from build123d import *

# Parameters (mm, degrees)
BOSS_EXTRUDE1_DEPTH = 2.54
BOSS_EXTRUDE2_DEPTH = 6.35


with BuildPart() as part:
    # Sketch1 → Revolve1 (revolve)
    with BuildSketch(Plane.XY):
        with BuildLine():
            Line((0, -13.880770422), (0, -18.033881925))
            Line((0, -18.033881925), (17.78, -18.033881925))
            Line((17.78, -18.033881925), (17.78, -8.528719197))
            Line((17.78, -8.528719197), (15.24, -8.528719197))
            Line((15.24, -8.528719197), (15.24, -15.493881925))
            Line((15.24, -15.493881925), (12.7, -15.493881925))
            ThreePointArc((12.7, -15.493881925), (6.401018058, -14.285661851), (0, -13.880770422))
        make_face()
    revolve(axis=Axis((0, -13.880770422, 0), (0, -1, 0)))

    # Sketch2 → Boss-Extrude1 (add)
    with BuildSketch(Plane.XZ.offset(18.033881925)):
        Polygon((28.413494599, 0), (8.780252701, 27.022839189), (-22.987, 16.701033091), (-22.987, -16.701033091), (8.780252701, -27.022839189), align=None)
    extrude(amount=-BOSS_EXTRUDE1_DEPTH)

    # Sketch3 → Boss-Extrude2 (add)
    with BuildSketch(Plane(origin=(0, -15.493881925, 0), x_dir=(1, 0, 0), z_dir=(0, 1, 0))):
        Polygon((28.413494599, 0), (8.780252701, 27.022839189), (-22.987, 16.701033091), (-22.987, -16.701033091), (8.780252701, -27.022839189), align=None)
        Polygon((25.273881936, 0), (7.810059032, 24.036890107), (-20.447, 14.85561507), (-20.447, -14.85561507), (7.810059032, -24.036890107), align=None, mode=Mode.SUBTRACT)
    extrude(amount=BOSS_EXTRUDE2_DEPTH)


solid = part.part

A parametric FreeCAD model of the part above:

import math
import FreeCAD as App
import Part
import Sketcher

V = App.Vector
Q = App.Units.Quantity

doc = App.newDocument("Part")
body = doc.addObject("PartDesign::Body", "Body")

sketch1 = doc.addObject("Sketcher::SketchObject", "Sketch")
body.addObject(sketch1)
sketch1.AttachmentSupport = (doc.XY_Plane, [""])
sketch1.MapMode = "FlatFace"
sketch1.addGeometry([
    Part.LineSegment(V(0, -13.9, 0), V(0, -18, 0)),
    Part.LineSegment(V(0, -18, 0), V(17.8, -18, 0)),
    Part.LineSegment(V(17.8, -18, 0), V(17.8, -8.5, 0)),
    Part.LineSegment(V(17.8, -8.5, 0), V(15.2, -8.5, 0)),
    Part.LineSegment(V(15.2, -8.5, 0), V(15.2, -15.5, 0)),
    Part.LineSegment(V(15.2, -15.5, 0), V(12.7, -15.5, 0)),
    Part.ArcOfCircle(Part.Circle(V(0, -64.7, 0), V(0, 0, 1), 50.8), math.radians(75.52), math.radians(90)),
], False)
sketch1.addConstraint([
    Sketcher.Constraint("Coincident", 0, 2, 1, 1),
    Sketcher.Constraint("Coincident", 1, 2, 2, 1),
    Sketcher.Constraint("Coincident", 2, 2, 3, 1),
    Sketcher.Constraint("Coincident", 3, 2, 4, 1),
    Sketcher.Constraint("Coincident", 4, 2, 5, 1),
    Sketcher.Constraint("Coincident", 5, 2, 6, 1),
    Sketcher.Constraint("Coincident", 6, 2, 0, 1),
    Sketcher.Constraint("Vertical", 0),
    Sketcher.Constraint("Horizontal", 1),
    Sketcher.Constraint("Vertical", 2),
    Sketcher.Constraint("Horizontal", 3),
    Sketcher.Constraint("Vertical", 4),
    Sketcher.Constraint("Horizontal", 5),
    Sketcher.Constraint("PointOnObject", 6, 3, -2),
    Sketcher.Constraint("PointOnObject", 0, 2, -2),
    Sketcher.Constraint("Equal", 3, 5),
    Sketcher.Constraint("Radius", 6, Q("2 in")),
    Sketcher.Constraint("DistanceX", 1, 1, 1, 2, Q("0.7 in")),
    Sketcher.Constraint("DistanceX", 3, 2, 3, 1, Q("0.1 in")),
    Sketcher.Constraint("DistanceY", 1, 2, 4, 2, Q("0.1 in")),
    Sketcher.Constraint("DistanceY", 2, 1, 2, 2, 9.505163),
    Sketcher.Constraint("DistanceY", 6, 3, -1, 1, 64.68077),
])
revolution = doc.addObject("PartDesign::Revolution", "Revolution")
body.addObject(revolution)
revolution.Profile = sketch1
revolution.ReferenceAxis = (sketch1, ["V_Axis"])
revolution.Angle = 360

sketch2 = doc.addObject("Sketcher::SketchObject", "Sketch001")
body.addObject(sketch2)
sketch2.AttachmentSupport = (doc.XZ_Plane, [""])
sketch2.MapMode = "FlatFace"
sketch2.AttachmentOffset = App.Placement(V(0, 0, 18.033882), App.Rotation())
sketch2.addGeometry([
    Part.LineSegment(V(28, 0, 0), V(9, 27, 0)),
    Part.LineSegment(V(9, 27, 0), V(-23, 17, 0)),
    Part.LineSegment(V(-23, 17, 0), V(-23, -17, 0)),
    Part.LineSegment(V(-23, -17, 0), V(9, -27, 0)),
    Part.LineSegment(V(9, -27, 0), V(28, 0, 0)),
], False)
sketch2.addConstraint([
    Sketcher.Constraint("Coincident", 0, 2, 1, 1),
    Sketcher.Constraint("Coincident", 1, 2, 2, 1),
    Sketcher.Constraint("Coincident", 2, 2, 3, 1),
    Sketcher.Constraint("Coincident", 3, 2, 4, 1),
    Sketcher.Constraint("Coincident", 4, 2, 0, 1),
    Sketcher.Constraint("Vertical", 2),
    Sketcher.Constraint("Symmetric", 0, 2, 3, 2, -1),
    Sketcher.Constraint("PointOnObject", 4, 2, -1),
    Sketcher.Constraint("Equal", 0, 1),
    Sketcher.Constraint("Equal", 1, 3),
    Sketcher.Constraint("Angle", 0, Q("126 deg")),
    Sketcher.Constraint("Angle", 1, Q("-162 deg")),
    Sketcher.Constraint("DistanceX", 1, 2, -1, 1, Q("0.905 in")),
    Sketcher.Constraint("DistanceY", 2, 2, 2, 1, 33.402066),
])
pad1 = doc.addObject("PartDesign::Pad", "Pad")
body.addObject(pad1)
pad1.Profile = sketch2
pad1.Length = Q("0.1 in")
pad1.Reversed = True

sketch3 = doc.addObject("Sketcher::SketchObject", "Sketch002")
body.addObject(sketch3)
sketch3.AttachmentSupport = (doc.XZ_Plane, [""])
sketch3.MapMode = "FlatFace"
sketch3.AttachmentOffset = App.Placement(V(0, 0, 15.493882), App.Rotation())
sketch3.addGeometry([
    Part.LineSegment(V(28, 0, 0), V(9, -27, 0)),
    Part.LineSegment(V(9, -27, 0), V(-23, -17, 0)),
    Part.LineSegment(V(-23, -17, 0), V(-23, 17, 0)),
    Part.LineSegment(V(-23, 17, 0), V(9, 27, 0)),
    Part.LineSegment(V(9, 27, 0), V(28, 0, 0)),
    Part.LineSegment(V(8, -24, 0), V(25, 0, 0)),
    Part.LineSegment(V(25, 0, 0), V(8, 24, 0)),
    Part.LineSegment(V(8, 24, 0), V(-20, 15, 0)),
    Part.LineSegment(V(-20, 15, 0), V(-20, -15, 0)),
    Part.LineSegment(V(-20, -15, 0), V(8, -24, 0)),
], False)
sketch3.addConstraint([
    Sketcher.Constraint("Coincident", 0, 2, 1, 1),
    Sketcher.Constraint("Coincident", 1, 2, 2, 1),
    Sketcher.Constraint("Coincident", 2, 2, 3, 1),
    Sketcher.Constraint("Coincident", 3, 2, 4, 1),
    Sketcher.Constraint("Coincident", 4, 2, 0, 1),
    Sketcher.Constraint("Coincident", 5, 2, 6, 1),
    Sketcher.Constraint("Coincident", 6, 2, 7, 1),
    Sketcher.Constraint("Coincident", 7, 2, 8, 1),
    Sketcher.Constraint("Coincident", 8, 2, 9, 1),
    Sketcher.Constraint("Coincident", 9, 2, 5, 1),
    Sketcher.Constraint("Vertical", 2),
    Sketcher.Constraint("Vertical", 8),
    Sketcher.Constraint("Symmetric", 0, 2, 3, 2, -1),
    Sketcher.Constraint("Symmetric", 6, 2, 9, 2, -1),
    Sketcher.Constraint("PointOnObject", 4, 2, -1),
    Sketcher.Constraint("PointOnObject", 5, 2, -1),
    Sketcher.Constraint("Parallel", 0, 5),
    Sketcher.Constraint("Parallel", 3, 7),
    Sketcher.Constraint("Parallel", 1, 9),
    Sketcher.Constraint("Equal", 0, 1),
    Sketcher.Constraint("Equal", 1, 3),
    Sketcher.Constraint("Equal", 6, 7),
    Sketcher.Constraint("Angle", 0, Q("-126 deg")),
    Sketcher.Constraint("Angle", 1, Q("162 deg")),
    Sketcher.Constraint("DistanceX", 2, 2, 7, 2, Q("0.1 in")),
    Sketcher.Constraint("DistanceX", 1, 2, -1, 1, Q("0.905 in")),
    Sketcher.Constraint("DistanceY", 8, 2, 8, 1, 29.71123),
    Sketcher.Constraint("DistanceY", 2, 1, 2, 2, 33.402066),
])
pad2 = doc.addObject("PartDesign::Pad", "Pad001")
body.addObject(pad2)
pad2.Profile = sketch3
pad2.Length = Q("0.25 in")
pad2.Reversed = True

doc.recompute()
